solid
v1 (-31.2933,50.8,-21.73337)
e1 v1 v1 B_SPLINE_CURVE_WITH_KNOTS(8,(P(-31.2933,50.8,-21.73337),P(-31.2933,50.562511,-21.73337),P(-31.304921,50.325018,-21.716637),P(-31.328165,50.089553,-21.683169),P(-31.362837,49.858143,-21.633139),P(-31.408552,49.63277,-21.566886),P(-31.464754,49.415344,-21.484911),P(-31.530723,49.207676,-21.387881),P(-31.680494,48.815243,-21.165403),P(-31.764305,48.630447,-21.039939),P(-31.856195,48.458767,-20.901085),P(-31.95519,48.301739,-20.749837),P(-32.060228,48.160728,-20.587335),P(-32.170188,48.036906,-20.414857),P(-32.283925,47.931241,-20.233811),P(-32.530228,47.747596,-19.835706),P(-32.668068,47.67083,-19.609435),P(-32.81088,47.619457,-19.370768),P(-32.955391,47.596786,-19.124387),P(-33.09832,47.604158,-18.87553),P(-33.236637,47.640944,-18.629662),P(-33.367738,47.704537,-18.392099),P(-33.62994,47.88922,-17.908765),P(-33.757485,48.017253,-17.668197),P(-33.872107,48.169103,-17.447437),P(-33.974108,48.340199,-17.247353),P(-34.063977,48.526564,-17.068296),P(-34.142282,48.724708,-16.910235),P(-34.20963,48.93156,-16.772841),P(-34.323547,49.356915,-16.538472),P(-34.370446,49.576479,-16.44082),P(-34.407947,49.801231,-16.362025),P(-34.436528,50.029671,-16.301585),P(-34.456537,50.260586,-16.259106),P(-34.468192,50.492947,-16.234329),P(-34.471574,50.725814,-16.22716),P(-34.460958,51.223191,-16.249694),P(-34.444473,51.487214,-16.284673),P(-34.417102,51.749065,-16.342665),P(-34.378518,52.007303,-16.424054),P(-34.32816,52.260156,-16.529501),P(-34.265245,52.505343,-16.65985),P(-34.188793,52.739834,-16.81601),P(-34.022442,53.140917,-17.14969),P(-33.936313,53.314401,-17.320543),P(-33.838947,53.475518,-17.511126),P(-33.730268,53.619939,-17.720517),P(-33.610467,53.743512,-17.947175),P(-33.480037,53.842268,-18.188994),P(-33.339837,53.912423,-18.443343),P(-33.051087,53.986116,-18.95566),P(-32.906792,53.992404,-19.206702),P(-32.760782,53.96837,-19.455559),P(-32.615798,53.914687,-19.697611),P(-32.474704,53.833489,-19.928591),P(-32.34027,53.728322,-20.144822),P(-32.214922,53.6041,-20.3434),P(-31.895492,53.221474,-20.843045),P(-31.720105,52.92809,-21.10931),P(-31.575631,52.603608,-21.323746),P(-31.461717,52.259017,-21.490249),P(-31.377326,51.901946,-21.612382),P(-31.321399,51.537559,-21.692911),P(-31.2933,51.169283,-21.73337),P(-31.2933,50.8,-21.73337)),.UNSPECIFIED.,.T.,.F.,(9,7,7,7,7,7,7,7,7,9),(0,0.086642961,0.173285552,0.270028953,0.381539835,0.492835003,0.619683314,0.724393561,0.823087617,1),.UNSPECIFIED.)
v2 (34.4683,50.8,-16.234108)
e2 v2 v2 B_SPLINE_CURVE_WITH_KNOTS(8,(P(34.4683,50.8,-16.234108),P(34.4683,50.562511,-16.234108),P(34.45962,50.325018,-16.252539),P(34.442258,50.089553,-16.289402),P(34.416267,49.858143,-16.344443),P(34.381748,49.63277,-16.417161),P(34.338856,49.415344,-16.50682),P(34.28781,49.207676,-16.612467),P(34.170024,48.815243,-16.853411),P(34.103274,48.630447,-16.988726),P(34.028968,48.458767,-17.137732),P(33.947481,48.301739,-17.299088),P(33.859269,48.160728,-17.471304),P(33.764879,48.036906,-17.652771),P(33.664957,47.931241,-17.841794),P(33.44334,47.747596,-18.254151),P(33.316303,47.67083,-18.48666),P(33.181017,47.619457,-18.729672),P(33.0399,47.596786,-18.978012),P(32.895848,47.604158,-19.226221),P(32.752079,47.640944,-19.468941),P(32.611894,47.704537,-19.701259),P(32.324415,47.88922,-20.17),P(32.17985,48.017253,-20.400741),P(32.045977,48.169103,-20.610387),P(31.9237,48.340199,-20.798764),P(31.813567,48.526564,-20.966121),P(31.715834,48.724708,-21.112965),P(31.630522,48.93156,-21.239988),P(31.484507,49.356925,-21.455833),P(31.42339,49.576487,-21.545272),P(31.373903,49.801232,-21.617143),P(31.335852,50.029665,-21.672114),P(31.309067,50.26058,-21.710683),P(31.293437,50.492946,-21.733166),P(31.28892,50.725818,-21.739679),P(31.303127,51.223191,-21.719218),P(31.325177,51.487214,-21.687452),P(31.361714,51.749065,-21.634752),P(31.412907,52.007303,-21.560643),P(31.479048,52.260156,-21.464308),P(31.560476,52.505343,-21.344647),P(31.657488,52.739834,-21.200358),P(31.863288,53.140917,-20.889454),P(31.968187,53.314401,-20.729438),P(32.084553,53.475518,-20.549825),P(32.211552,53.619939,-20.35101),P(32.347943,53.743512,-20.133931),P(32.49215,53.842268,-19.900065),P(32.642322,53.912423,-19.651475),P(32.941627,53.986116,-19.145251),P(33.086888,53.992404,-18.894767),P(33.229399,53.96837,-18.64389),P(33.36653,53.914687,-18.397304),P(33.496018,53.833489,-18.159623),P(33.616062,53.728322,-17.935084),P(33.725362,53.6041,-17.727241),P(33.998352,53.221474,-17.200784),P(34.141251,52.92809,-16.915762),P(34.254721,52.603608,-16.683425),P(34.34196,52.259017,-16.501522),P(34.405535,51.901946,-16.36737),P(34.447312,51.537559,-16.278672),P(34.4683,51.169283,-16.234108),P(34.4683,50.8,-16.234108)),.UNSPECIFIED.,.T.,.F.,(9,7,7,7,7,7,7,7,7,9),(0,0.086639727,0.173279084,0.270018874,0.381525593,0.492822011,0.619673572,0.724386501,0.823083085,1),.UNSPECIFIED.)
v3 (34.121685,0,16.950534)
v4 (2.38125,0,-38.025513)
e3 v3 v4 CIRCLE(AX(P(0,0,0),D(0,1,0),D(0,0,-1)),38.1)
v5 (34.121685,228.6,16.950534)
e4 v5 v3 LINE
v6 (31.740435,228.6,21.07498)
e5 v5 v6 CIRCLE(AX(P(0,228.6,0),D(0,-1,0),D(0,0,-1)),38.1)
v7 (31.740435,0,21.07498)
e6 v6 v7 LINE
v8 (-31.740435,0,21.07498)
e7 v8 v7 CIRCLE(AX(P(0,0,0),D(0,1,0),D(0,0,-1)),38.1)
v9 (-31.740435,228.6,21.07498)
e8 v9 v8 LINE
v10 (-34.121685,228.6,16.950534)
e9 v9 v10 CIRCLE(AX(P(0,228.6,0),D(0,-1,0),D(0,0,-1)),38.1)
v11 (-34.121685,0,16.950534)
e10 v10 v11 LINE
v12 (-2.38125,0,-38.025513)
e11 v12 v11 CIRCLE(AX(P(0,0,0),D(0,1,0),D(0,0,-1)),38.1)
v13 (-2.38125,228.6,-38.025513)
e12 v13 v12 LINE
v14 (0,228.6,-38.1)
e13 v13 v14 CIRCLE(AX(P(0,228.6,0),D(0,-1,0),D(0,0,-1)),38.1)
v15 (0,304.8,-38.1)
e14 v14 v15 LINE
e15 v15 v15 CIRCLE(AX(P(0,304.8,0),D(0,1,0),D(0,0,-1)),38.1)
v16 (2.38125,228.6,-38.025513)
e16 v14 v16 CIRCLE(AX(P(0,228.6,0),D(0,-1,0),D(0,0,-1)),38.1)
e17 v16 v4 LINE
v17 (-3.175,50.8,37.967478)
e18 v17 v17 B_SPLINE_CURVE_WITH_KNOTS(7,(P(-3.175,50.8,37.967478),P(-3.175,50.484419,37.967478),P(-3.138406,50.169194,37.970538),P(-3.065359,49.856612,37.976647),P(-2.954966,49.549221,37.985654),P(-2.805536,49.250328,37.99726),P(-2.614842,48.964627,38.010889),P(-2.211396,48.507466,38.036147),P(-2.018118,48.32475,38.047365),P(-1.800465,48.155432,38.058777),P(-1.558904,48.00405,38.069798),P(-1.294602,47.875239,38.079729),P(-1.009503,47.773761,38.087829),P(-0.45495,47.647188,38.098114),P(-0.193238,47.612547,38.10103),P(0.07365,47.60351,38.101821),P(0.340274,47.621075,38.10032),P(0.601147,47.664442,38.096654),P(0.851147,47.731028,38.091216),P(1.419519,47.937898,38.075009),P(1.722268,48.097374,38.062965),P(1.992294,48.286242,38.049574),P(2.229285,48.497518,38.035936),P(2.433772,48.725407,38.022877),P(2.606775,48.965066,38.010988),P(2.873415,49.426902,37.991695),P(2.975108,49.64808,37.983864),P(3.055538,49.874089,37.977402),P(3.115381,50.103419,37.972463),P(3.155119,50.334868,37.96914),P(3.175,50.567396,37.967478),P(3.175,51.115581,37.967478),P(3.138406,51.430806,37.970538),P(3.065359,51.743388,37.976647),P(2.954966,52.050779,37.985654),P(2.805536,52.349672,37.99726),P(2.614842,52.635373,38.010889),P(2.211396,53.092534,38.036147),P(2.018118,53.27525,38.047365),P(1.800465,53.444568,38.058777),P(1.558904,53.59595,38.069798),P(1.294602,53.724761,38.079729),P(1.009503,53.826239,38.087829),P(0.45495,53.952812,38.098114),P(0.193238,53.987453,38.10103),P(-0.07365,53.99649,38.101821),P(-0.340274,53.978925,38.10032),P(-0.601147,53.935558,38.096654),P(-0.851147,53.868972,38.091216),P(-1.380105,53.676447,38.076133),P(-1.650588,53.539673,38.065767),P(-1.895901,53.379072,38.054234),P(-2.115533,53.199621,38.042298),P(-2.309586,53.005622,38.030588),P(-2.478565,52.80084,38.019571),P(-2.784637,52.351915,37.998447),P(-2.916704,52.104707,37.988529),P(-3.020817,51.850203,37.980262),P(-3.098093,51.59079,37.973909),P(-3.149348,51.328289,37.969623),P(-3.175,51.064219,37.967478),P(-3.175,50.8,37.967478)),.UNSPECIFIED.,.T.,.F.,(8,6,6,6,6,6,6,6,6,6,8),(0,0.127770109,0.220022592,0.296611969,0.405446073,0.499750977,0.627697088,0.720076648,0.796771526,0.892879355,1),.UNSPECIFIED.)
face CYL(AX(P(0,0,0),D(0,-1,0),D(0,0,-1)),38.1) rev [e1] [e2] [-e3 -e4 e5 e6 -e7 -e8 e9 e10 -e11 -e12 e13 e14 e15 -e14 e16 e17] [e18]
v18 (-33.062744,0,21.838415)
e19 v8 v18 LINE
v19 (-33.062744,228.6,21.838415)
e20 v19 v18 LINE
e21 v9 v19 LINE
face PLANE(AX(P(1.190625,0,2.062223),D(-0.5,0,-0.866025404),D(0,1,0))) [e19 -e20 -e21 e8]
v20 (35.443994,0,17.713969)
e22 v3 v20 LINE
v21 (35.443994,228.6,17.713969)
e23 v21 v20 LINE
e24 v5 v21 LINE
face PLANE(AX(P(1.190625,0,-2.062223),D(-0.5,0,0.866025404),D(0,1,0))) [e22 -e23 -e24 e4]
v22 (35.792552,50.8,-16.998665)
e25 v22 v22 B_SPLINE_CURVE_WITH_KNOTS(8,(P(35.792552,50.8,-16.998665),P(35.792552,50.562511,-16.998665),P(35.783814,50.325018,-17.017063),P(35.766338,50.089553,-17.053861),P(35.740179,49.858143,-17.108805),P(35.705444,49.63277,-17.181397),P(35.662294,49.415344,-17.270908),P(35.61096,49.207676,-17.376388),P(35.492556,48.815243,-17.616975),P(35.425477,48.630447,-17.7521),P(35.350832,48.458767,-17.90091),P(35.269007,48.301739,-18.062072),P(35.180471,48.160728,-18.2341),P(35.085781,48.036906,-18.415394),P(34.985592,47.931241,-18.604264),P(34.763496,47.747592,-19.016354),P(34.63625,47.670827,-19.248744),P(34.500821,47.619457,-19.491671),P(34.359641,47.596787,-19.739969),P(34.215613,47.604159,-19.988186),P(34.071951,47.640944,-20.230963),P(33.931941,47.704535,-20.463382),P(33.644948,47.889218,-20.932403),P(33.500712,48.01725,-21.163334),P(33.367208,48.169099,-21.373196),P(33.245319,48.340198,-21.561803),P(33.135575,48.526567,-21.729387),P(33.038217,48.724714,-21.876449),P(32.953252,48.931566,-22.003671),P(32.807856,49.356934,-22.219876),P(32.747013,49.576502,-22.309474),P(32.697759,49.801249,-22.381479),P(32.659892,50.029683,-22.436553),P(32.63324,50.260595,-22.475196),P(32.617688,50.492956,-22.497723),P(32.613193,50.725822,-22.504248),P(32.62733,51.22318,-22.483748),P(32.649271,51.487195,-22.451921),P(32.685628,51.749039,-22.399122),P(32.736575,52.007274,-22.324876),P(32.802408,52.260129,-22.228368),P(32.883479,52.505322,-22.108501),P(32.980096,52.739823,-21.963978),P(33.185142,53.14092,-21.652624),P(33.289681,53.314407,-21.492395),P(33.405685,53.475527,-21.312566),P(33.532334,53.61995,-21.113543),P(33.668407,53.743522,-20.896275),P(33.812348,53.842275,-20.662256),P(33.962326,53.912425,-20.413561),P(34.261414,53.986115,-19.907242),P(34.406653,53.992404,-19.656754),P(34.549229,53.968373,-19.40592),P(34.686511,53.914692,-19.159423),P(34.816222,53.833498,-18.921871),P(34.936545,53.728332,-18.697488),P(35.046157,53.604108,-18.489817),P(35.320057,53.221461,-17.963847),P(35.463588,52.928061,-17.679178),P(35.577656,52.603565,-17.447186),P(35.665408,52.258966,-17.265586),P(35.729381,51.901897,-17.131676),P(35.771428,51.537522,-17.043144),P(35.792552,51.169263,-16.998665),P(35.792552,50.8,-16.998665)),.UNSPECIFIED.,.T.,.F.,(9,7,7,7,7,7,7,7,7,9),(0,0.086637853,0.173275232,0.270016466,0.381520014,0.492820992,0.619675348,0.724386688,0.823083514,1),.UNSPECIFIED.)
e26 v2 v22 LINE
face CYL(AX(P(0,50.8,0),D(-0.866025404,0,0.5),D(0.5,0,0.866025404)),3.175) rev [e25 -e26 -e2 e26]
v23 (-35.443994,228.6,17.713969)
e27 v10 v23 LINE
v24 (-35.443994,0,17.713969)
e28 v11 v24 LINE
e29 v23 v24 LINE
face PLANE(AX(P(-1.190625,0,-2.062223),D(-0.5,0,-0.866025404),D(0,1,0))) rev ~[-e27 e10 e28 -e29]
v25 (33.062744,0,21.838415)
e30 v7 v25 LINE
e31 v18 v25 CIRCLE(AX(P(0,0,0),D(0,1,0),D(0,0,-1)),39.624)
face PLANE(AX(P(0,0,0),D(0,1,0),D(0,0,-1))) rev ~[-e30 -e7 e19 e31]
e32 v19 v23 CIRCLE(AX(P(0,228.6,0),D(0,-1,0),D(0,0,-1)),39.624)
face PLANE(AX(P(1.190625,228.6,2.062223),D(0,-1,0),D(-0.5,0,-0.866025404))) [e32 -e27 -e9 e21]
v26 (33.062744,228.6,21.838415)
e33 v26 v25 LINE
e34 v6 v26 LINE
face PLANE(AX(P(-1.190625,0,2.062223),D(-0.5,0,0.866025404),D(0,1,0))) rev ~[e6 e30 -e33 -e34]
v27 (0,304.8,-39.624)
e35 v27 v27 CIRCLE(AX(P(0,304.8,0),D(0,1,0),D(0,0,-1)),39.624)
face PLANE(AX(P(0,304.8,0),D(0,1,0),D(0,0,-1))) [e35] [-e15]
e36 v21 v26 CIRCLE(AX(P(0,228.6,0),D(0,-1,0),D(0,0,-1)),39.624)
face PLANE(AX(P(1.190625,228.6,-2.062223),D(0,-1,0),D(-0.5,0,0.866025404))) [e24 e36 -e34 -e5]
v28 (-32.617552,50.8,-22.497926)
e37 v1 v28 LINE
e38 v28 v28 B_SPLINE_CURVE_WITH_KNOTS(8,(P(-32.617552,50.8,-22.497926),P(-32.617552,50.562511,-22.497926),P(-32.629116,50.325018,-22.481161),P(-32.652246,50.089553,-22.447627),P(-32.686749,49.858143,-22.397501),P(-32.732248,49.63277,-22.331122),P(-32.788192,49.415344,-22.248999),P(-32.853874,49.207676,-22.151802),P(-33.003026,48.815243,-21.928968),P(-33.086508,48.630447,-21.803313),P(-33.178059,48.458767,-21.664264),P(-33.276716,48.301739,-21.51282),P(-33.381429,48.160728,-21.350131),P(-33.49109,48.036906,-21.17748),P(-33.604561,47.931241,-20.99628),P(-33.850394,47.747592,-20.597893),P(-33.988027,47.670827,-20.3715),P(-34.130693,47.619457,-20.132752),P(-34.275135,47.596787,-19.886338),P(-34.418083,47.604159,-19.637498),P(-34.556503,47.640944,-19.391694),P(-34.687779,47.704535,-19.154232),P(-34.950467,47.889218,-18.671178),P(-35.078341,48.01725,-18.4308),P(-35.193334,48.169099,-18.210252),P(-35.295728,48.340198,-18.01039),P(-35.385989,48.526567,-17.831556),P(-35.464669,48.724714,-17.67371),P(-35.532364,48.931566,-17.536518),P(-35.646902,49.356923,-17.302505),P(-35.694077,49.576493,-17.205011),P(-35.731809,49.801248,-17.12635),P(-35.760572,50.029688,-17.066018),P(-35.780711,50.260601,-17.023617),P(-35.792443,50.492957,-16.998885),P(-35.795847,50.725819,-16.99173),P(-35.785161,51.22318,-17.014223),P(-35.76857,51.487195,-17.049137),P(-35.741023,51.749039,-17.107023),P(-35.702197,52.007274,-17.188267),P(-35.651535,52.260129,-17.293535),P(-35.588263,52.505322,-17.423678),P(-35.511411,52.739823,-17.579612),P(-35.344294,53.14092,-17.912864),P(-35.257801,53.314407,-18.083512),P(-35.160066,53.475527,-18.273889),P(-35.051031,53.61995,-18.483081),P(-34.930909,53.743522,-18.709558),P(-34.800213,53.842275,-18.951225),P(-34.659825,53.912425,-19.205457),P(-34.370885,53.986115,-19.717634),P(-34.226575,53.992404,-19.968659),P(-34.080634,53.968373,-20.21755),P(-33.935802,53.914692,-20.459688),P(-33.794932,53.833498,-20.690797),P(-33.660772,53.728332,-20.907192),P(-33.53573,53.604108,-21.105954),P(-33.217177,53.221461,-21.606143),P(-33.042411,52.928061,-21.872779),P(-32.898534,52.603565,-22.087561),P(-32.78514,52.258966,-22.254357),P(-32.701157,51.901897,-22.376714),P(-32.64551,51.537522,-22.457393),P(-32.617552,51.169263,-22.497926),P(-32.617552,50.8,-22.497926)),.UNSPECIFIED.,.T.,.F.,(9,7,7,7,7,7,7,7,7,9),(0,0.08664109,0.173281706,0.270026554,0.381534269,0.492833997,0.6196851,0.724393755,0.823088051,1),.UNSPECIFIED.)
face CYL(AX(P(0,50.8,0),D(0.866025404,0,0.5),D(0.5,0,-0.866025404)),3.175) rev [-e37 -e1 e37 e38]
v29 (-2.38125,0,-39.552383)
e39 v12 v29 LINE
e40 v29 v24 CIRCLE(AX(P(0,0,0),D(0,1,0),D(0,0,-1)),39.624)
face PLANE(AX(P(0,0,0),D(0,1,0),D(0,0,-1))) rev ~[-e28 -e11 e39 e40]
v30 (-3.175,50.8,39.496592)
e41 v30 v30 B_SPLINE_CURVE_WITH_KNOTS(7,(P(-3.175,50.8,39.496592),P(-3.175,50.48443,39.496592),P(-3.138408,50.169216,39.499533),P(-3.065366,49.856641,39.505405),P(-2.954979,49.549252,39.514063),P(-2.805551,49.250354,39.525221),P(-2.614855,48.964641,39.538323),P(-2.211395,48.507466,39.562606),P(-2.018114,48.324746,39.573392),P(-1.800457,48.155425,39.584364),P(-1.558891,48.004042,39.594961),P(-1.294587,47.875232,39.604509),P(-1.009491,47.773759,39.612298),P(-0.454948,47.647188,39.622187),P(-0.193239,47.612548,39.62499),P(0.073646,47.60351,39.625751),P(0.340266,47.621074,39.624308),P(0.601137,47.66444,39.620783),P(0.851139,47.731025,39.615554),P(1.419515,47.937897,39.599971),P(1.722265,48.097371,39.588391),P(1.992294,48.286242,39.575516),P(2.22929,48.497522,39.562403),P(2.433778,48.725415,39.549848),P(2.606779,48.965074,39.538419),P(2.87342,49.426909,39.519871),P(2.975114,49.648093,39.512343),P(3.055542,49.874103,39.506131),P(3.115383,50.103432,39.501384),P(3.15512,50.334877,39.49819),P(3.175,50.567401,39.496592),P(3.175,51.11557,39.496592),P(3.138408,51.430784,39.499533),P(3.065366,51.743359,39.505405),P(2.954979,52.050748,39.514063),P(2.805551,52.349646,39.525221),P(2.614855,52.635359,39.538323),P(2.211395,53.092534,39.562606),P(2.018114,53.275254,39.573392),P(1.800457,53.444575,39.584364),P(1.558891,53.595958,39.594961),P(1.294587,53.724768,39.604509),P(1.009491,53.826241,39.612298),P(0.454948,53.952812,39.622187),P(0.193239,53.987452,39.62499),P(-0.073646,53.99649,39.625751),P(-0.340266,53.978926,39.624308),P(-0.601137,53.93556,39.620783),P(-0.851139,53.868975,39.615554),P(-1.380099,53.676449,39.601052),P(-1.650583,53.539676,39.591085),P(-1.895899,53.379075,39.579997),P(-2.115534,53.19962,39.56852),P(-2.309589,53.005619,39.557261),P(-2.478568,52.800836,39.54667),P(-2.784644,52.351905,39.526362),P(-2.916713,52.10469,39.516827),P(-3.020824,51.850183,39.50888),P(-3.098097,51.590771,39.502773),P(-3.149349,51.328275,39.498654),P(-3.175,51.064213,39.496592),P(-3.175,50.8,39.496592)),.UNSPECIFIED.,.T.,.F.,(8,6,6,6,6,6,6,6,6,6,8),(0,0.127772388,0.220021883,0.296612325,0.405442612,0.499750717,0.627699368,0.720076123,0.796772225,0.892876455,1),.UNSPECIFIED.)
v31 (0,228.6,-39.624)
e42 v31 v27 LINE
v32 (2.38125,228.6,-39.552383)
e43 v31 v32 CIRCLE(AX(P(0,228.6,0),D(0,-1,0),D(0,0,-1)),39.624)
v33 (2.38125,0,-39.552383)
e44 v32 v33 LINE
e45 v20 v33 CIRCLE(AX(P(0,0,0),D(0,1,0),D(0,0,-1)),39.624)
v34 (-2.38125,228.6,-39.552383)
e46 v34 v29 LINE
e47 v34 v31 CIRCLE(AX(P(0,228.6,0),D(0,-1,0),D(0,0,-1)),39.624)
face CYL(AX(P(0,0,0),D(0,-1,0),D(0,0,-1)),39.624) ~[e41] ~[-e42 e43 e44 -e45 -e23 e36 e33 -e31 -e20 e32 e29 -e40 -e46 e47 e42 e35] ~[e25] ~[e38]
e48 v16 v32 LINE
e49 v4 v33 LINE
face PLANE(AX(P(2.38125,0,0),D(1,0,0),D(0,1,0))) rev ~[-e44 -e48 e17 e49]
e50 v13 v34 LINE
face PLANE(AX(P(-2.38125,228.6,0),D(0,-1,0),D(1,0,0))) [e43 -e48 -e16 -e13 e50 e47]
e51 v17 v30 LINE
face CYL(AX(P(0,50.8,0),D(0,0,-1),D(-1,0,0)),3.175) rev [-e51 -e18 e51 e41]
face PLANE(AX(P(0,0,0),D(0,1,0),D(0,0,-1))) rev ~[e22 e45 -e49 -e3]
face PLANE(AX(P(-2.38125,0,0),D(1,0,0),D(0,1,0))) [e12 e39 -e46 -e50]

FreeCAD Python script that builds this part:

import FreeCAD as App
import Part
import Sketcher

V = App.Vector
Q = App.Units.Quantity


def add_polygon(sketch, points):
    """Adds a closed chain of lines whose ends are joined by coincident constraints."""
    first, n = sketch.GeometryCount, len(points)
    for a, b in zip(points, points[1:] + points[:1]):
        sketch.addGeometry(Part.LineSegment(App.Vector(*a, 0), App.Vector(*b, 0)), False)
    for i in range(n):
        sketch.addConstraint(Sketcher.Constraint("Coincident", first + i, 2, first + (i + 1) % n, 1))

doc = App.newDocument("Part")
body = doc.addObject("PartDesign::Body", "Body")

sketch1 = body.newObject("Sketcher::SketchObject", "Sketch")
sketch1.AttachmentSupport = (doc.getObject("XZ_Plane"), [""])
sketch1.MapMode = "FlatFace"
sketch1.addGeometry(Part.Circle(V(0, 0, 0), V(0, 0, 1), 40), False)
sketch1.addGeometry(Part.Circle(V(0, 0, 0), V(0, 0, 1), 38), False)
sketch1.addConstraint(Sketcher.Constraint("Coincident", 0, 3, -1, 1))
sketch1.addConstraint(Sketcher.Constraint("Coincident", 1, 3, -1, 1))
sketch1.addConstraint(Sketcher.Constraint("Diameter", 1, Q("3 in")))
sketch1.addConstraint(Sketcher.Constraint("Diameter", 0, Q("3.12 in")))
pad1 = body.newObject("PartDesign::Pad", "Pad")
pad1.Profile = sketch1
pad1.Length = Q("12 in")
pad1.Reversed = True

sketch2 = body.newObject("Sketcher::SketchObject", "Sketch001")
sketch2.AttachmentSupport = (doc.getObject("XY_Plane"), [""])
sketch2.MapMode = "FlatFace"
add_polygon(sketch2, [(-2.4, 228.6), (-2.4, 0), (2.4, 0), (2.4, 228.6)])
sketch2.addConstraint(Sketcher.Constraint("Vertical", 0))
sketch2.addConstraint(Sketcher.Constraint("Horizontal", 1))
sketch2.addConstraint(Sketcher.Constraint("Vertical", 2))
sketch2.addConstraint(Sketcher.Constraint("Horizontal", 3))
sketch2.addConstraint(Sketcher.Constraint("Symmetric", 0, 2, 1, 2, -1, 1))
sketch2.addConstraint(Sketcher.Constraint("DistanceY", 0, 2, 0, 1, Q("9 in")))
sketch2.addConstraint(Sketcher.Constraint("DistanceX", 1, 1, 1, 2, Q("0.1875 in")))
pocket1 = body.newObject("PartDesign::Pocket", "Pocket")
pocket1.Profile = sketch2
pocket1.Type = "ThroughAll"
doc.recompute()

polarpattern = body.newObject("PartDesign::PolarPattern", "PolarPattern")
polarpattern.Originals = [pocket1]
polarpattern.Axis = (doc.getObject("Y_Axis"), [""])
polarpattern.Angle = 360
polarpattern.Occurrences = 3
body.Tip = polarpattern

sketch3 = body.newObject("Sketcher::SketchObject", "Sketch002")
sketch3.AttachmentSupport = (doc.getObject("XY_Plane"), [""])
sketch3.MapMode = "FlatFace"
sketch3.addGeometry(Part.Circle(V(0, 50.8, 0), V(0, 0, 1), 3.2), False)
sketch3.addConstraint(Sketcher.Constraint("PointOnObject", 0, 3, -2))
sketch3.addConstraint(Sketcher.Constraint("Diameter", 0, Q("0.25 in")))
sketch3.addConstraint(Sketcher.Constraint("DistanceY", -1, 1, 0, 3, Q("2 in")))
pocket2 = body.newObject("PartDesign::Pocket", "Pocket001")
pocket2.Profile = sketch3
pocket2.Type = "ThroughAll"
pocket2.Reversed = True
doc.recompute()

polarpattern2 = body.newObject("PartDesign::PolarPattern", "PolarPattern001")
polarpattern2.Originals = [pocket2]
polarpattern2.Axis = (doc.getObject("Y_Axis"), [""])
polarpattern2.Angle = 360
polarpattern2.Occurrences = 3
body.Tip = polarpattern2

doc.recompute()
